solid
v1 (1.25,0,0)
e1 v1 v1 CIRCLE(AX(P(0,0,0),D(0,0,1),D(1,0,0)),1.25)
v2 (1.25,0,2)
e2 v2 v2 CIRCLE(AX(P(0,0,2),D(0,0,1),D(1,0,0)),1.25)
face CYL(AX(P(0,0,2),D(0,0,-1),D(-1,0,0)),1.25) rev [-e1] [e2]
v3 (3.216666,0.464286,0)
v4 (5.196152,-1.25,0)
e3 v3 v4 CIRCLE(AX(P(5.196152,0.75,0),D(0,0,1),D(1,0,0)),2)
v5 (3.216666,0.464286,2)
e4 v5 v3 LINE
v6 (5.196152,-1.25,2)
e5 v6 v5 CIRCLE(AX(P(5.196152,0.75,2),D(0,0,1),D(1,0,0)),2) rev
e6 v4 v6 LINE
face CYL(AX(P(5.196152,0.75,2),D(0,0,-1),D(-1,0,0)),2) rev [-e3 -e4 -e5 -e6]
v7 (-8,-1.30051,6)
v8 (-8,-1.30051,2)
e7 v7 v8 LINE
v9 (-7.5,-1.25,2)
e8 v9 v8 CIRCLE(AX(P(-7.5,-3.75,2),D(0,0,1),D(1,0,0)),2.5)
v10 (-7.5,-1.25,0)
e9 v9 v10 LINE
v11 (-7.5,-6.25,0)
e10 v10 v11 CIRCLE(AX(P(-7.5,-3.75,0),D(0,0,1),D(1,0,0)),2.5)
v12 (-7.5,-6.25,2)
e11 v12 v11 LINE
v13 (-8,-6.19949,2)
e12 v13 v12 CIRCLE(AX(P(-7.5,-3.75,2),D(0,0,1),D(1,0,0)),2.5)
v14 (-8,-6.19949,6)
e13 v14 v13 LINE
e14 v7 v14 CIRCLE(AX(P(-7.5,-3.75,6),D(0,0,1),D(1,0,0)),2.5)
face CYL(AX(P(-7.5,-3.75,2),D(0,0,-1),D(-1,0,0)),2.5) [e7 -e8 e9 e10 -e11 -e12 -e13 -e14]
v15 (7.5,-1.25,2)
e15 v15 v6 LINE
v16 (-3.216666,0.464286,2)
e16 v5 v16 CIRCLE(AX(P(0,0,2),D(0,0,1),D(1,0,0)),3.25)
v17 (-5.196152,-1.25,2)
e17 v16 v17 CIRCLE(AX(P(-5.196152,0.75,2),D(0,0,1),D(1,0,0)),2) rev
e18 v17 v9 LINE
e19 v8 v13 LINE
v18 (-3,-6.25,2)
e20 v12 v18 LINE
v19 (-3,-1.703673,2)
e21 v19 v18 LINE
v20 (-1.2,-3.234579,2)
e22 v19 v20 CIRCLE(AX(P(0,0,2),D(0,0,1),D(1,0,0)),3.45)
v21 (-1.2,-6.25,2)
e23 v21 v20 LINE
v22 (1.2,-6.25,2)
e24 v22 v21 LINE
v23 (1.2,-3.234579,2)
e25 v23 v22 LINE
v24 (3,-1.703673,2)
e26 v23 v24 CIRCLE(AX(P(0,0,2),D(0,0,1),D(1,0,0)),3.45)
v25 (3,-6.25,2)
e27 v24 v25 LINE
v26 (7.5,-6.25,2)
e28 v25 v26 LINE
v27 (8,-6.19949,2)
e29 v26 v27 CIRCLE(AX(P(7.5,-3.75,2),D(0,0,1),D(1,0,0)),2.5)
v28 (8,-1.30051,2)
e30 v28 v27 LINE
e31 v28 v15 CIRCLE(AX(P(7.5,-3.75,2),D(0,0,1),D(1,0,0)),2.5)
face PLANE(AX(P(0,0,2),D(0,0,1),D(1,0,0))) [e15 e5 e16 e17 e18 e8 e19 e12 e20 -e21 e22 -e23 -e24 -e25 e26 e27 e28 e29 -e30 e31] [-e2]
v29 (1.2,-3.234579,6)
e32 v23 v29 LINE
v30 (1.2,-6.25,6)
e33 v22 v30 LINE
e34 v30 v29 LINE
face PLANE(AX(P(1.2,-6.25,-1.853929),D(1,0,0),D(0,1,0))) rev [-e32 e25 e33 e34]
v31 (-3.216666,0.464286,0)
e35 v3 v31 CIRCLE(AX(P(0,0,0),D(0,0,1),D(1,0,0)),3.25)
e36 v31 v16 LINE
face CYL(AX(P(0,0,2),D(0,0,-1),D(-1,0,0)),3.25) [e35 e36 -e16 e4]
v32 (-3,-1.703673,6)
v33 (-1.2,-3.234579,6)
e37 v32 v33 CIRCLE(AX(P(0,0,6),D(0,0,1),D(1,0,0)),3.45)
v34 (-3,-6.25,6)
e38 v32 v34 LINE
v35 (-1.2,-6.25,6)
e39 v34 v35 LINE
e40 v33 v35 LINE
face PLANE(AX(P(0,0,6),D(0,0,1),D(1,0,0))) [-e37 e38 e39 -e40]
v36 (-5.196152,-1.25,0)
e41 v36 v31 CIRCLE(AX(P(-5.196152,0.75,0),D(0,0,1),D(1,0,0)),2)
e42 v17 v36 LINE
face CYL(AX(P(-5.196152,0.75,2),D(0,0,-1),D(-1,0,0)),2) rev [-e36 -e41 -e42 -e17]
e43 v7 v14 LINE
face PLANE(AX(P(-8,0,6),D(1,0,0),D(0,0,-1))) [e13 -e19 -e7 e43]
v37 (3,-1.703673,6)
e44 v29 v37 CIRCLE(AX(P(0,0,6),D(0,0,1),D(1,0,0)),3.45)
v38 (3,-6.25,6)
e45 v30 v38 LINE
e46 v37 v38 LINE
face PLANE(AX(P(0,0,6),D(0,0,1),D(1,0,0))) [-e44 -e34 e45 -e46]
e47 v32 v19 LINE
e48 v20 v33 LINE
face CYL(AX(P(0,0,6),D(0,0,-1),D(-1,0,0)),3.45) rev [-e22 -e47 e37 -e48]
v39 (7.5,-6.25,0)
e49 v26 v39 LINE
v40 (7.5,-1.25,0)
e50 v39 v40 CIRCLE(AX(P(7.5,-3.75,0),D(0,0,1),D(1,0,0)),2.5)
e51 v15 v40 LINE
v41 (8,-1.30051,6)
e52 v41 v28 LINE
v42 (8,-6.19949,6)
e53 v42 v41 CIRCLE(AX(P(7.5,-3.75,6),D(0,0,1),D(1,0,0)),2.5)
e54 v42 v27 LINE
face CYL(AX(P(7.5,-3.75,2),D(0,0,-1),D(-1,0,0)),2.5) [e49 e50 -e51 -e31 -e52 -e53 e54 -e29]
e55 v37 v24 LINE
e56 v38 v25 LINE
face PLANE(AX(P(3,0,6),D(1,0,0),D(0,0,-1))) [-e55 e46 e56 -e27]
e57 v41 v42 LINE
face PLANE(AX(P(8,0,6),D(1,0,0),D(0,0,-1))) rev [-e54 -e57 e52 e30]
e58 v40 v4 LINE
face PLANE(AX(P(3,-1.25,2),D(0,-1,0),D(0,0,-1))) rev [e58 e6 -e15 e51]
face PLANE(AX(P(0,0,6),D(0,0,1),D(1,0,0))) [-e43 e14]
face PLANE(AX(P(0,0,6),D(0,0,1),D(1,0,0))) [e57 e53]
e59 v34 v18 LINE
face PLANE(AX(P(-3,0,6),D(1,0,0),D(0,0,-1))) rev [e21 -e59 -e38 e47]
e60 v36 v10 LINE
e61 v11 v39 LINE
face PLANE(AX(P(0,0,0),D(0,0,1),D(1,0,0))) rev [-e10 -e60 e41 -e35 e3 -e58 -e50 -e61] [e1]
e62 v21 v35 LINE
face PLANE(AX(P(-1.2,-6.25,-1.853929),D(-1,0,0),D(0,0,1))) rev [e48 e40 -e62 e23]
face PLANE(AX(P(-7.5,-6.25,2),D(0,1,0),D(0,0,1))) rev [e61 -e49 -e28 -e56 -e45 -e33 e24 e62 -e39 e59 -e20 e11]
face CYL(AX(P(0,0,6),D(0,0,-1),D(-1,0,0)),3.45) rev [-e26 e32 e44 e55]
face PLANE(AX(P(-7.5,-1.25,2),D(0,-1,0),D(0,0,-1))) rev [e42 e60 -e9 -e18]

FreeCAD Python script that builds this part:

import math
import FreeCAD as App
import Part
import Sketcher

V = App.Vector


def edges_at(feature, points):
    """Names of the edges that pass closest to the given points."""
    edges = feature.Shape.Edges
    near = lambda p: min(range(len(edges)), key=lambda i: edges[i].distToShape(Part.Vertex(*p))[0])
    return sorted({f"Edge{near(p) + 1}" for p in points})


def add_polygon(sketch, points):
    """Adds a closed chain of lines whose ends are joined by coincident constraints."""
    first, n = sketch.GeometryCount, len(points)
    for a, b in zip(points, points[1:] + points[:1]):
        sketch.addGeometry(Part.LineSegment(App.Vector(*a, 0), App.Vector(*b, 0)), False)
    for i in range(n):
        sketch.addConstraint(Sketcher.Constraint("Coincident", first + i, 2, first + (i + 1) % n, 1))

doc = App.newDocument("Part")
body = doc.addObject("PartDesign::Body", "Body")

# Sketch on XY plane
sketch1 = doc.addObject("Sketcher::SketchObject", "Sketch")
body.addObject(sketch1)
sketch1.AttachmentSupport = (doc.XY_Plane, [""])
sketch1.MapMode = "FlatFace"
sketch1.addGeometry([
    Part.LineSegment(V(-3, -1.25, 0), V(-7.5, -1.25, 0)),  # 0
    Part.ArcOfCircle(Part.Circle(V(-7.5, -3.75, 0), V(0, 0, 1), 2.5), math.radians(90), math.radians(270)),  # 1
    Part.LineSegment(V(-7.5, -6.25, 0), V(7.5, -6.25, 0)),  # 2
    Part.ArcOfCircle(Part.Circle(V(7.5, -3.75, 0), V(0, 0, 1), 2.5), math.radians(-90), math.radians(90)),  # 3
    Part.LineSegment(V(7.5, -1.25, 0), V(3, -1.25, 0)),  # 4
    Part.ArcOfCircle(Part.Circle(V(0, 0, 0), V(0, 0, 1), 3.25), math.radians(-22.619865), math.radians(202.619865)),  # 5
    Part.Circle(V(0, 0, 0), V(0, 0, 1), 1.25),  # 6
], False)
sketch1.addConstraint([
    Sketcher.Constraint("Tangent", 0, 2, 1, 1),
    Sketcher.Constraint("Tangent", 1, 2, 2, 1),
    Sketcher.Constraint("Tangent", 2, 2, 3, 1),
    Sketcher.Constraint("Tangent", 3, 2, 4, 1),
    Sketcher.Constraint("Coincident", 4, 2, 5, 1),
    Sketcher.Constraint("Coincident", 5, 2, 0, 1),
    Sketcher.Constraint("Horizontal", 0),
    Sketcher.Constraint("Horizontal", 2),
    Sketcher.Constraint("Horizontal", 4),
    Sketcher.Constraint("Coincident", 5, 3, -1, 1),
    Sketcher.Constraint("Coincident", 6, 3, -1, 1),
    Sketcher.Constraint("Equal", 1, 3),
    Sketcher.Constraint("Equal", 0, 4),
    Sketcher.Constraint("Diameter", 6, 2.5),
    Sketcher.Constraint("Radius", 1, 2.5),
    Sketcher.Constraint("DistanceX", 2, 1, 2, 2, 15.0),
    Sketcher.Constraint("Radius", 5, 3.25),
    Sketcher.Constraint("DistanceX", 0, 2, 0, 1, 4.5),
])
pad1 = doc.addObject("PartDesign::Pad", "Pad")
body.addObject(pad1)
pad1.Profile = sketch1
pad1.Length = 2

# Sketch on XY plane
sketch2 = doc.addObject("Sketcher::SketchObject", "Sketch001")
body.addObject(sketch2)
sketch2.AttachmentSupport = (doc.XY_Plane, [""])
sketch2.MapMode = "FlatFace"
sketch2.AttachmentOffset = App.Placement(V(0, 0, 2), App.Rotation())
sketch2.addGeometry([
    Part.LineSegment(V(-8, -6.19949, 0), V(-8, -1.30051, 0)),  # 0
    Part.ArcOfCircle(Part.Circle(V(-7.5, -3.75, 0), V(0, 0, 1), 2.5), math.radians(101.536959), math.radians(258.463041)),  # 1
    Part.ArcOfCircle(Part.Circle(V(0, 0, 0), V(0, 0, 1), 3.45), math.radians(-150.408154), math.radians(-29.591846)),  # 2
    Part.LineSegment(V(-3, -1.703673, 0), V(-3, -6.25, 0)),  # 3
    Part.LineSegment(V(-3, -6.25, 0), V(3, -6.25, 0)),  # 4
    Part.LineSegment(V(3, -6.25, 0), V(3, -1.703673, 0)),  # 5
    Part.ArcOfCircle(Part.Circle(V(7.5, -3.75, 0), V(0, 0, 1), 2.5), math.radians(-78.463041), math.radians(78.463041)),  # 6
    Part.LineSegment(V(8, -1.30051, 0), V(8, -6.19949, 0)),  # 7
], False)
sketch2.addConstraint([
    Sketcher.Constraint("Coincident", 0, 1, 1, 2),
    Sketcher.Constraint("Coincident", 1, 1, 0, 2),
    Sketcher.Constraint("Coincident", 2, 1, 3, 1),
    Sketcher.Constraint("Coincident", 3, 2, 4, 1),
    Sketcher.Constraint("Coincident", 4, 2, 5, 1),
    Sketcher.Constraint("Coincident", 5, 2, 2, 2),
    Sketcher.Constraint("Coincident", 6, 1, 7, 2),
    Sketcher.Constraint("Coincident", 7, 1, 6, 2),
    Sketcher.Constraint("Vertical", 0),
    Sketcher.Constraint("Vertical", 3),
    Sketcher.Constraint("Horizontal", 4),
    Sketcher.Constraint("Vertical", 5),
    Sketcher.Constraint("Vertical", 7),
    Sketcher.Constraint("Coincident", 2, 3, -1, 1),
    Sketcher.Constraint("Equal", 1, 6),
    Sketcher.Constraint("Symmetric", 1, 3, 6, 3, -2),
    Sketcher.Constraint("Horizontal", 2, 1, 5, 2),
    Sketcher.Constraint("Horizontal", 0, 1, 6, 1),
    Sketcher.Constraint("Radius", 1, 2.5),
    Sketcher.Constraint("DistanceX", 4, 1, 4, 2, 6.0),
    Sketcher.Constraint("Radius", 2, 3.45),
    Sketcher.Constraint("DistanceX", 0, 1, -1, 1, 8.0),
    Sketcher.Constraint("DistanceX", 1, 3, 6, 3, 15.0),
    Sketcher.Constraint("DistanceY", 3, 2, 1, 3, 2.5),
    Sketcher.Constraint("DistanceY", 1, 3, -1, 1, 3.75),
])
pad2 = doc.addObject("PartDesign::Pad", "Pad001")
body.addObject(pad2)
pad2.Profile = sketch2
pad2.Length = 4
doc.recompute()

fillet = doc.addObject("PartDesign::Fillet", "Fillet")
body.addObject(fillet)
fillet.Base = (pad2, edges_at(pad2, [(3, -1.25, 1), (-3, -1.25, 1)]))
fillet.Radius = 2

# Sketch on XY plane
sketch3 = doc.addObject("Sketcher::SketchObject", "Sketch002")
body.addObject(sketch3)
sketch3.AttachmentSupport = (doc.XY_Plane, [""])
sketch3.MapMode = "FlatFace"
sketch3.AttachmentOffset = App.Placement(V(0, 0, 6), App.Rotation())
add_polygon(sketch3, [(-1.2, -3.234579), (-1.2, -6.25), (1.2, -6.25), (1.2, -3.234579)])  # lines 0-3
sketch3.addConstraint([
    Sketcher.Constraint("Vertical", 0),
    Sketcher.Constraint("Horizontal", 1),
    Sketcher.Constraint("Vertical", 2),
    Sketcher.Constraint("Horizontal", 3),
    Sketcher.Constraint("DistanceX", 1, 1, 1, 2, 2.4),
    Sketcher.Constraint("DistanceX", 0, 2, -1, 1, 1.2),
    Sketcher.Constraint("DistanceY", 0, 2, -1, 1, 6.25),
    Sketcher.Constraint("DistanceY", 0, 2, 0, 1, 3.015421),
])
pocket1 = doc.addObject("PartDesign::Pocket", "Pocket")
body.addObject(pocket1)
pocket1.Profile = sketch3
pocket1.Length = 4

doc.recompute()
